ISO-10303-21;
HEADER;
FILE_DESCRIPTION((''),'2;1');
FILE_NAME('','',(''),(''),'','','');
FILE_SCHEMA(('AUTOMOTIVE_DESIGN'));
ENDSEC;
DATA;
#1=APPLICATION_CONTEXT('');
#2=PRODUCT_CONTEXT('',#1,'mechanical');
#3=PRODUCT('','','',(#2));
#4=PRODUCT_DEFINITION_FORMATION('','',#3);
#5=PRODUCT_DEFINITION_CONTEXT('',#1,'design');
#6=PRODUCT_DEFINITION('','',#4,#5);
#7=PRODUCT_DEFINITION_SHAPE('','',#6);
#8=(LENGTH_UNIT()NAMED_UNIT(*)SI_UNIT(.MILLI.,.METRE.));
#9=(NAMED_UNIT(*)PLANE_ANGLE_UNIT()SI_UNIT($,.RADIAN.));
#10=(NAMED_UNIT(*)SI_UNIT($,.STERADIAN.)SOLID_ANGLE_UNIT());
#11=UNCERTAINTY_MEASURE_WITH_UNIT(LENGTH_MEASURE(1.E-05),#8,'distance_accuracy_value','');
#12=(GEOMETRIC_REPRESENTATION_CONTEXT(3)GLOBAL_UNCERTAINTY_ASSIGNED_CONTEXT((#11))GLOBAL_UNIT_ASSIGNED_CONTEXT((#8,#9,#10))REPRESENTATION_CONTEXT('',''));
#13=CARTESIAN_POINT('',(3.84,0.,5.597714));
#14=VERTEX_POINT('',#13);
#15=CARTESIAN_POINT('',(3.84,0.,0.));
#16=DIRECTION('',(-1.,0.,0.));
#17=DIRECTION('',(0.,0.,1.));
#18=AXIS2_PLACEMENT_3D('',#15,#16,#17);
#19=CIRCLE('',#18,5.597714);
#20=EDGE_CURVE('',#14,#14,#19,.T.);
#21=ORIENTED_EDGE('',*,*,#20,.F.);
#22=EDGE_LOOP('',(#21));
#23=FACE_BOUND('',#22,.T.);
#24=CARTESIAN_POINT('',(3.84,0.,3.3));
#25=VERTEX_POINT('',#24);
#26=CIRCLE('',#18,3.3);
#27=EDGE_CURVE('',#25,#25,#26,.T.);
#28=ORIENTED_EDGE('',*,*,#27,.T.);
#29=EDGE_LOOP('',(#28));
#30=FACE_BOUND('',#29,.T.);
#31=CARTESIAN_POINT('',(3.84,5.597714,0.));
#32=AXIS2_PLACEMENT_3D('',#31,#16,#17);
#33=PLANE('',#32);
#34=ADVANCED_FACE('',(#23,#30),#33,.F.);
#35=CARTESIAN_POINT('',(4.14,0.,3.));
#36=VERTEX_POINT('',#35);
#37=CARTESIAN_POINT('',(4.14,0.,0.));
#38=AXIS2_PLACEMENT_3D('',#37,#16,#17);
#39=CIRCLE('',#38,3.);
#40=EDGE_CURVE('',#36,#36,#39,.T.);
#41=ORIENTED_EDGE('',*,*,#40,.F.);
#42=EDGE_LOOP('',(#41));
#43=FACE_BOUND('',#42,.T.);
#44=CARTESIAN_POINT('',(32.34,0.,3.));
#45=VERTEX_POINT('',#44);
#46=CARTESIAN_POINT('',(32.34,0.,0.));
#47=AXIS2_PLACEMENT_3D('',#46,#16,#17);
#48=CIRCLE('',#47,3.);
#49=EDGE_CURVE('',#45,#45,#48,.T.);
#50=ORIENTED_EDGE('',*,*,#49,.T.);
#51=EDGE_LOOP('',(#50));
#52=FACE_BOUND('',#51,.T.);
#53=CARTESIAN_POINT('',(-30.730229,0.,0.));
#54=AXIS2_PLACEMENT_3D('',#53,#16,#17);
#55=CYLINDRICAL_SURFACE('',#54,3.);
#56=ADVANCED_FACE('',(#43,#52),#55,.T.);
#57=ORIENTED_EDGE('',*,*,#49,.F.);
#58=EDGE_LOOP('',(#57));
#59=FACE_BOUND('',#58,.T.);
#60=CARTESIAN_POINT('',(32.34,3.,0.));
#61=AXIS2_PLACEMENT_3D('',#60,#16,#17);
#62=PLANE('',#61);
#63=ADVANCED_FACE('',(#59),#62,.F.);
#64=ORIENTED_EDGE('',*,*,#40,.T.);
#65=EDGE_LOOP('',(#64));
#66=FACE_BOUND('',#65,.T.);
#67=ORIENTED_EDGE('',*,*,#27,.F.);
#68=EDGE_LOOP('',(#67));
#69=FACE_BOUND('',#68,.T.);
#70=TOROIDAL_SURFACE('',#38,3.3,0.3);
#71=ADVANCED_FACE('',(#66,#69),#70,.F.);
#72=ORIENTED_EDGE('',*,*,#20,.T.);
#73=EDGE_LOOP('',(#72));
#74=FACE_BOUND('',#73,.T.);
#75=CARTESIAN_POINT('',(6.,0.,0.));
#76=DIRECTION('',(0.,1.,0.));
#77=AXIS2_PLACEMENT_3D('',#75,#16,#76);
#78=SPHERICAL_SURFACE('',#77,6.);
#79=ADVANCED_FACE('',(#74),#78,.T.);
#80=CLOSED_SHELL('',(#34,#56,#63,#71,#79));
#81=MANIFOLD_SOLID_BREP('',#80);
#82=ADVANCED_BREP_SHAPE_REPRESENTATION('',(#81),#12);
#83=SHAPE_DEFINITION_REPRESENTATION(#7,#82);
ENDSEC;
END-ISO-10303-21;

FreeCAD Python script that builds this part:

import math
import FreeCAD as App
import Part
import Sketcher
from FreeCAD import Vector

doc = App.newDocument("Part")
params = doc.addObject("Spreadsheet::Sheet", "Params")
for row, (alias, value) in enumerate([
    ("sketch1_radius", "6 mm"),
    ("sketch1_radius2", "0.3 mm"),
    ("sketch1_height", "3 mm"),
    ("sketch1_width", "28.2 mm"),
    ("sketch1_width2", "32.34 mm"),
    ("revolution_angle", "360 deg"),
], start=1):
    params.set(f"A{row}", alias)
    params.set(f"B{row}", "=" + value)
    params.setAlias(f"B{row}", alias)

body = doc.addObject("PartDesign::Body", "Body")

# Sketch on XY plane
sketch1 = body.newObject("Sketcher::SketchObject", "Sketch")
sketch1.AttachmentSupport = (doc.getObject("XY_Plane"), [""])
sketch1.MapMode = "FlatFace"
sketch1.addGeometry([
    Part.LineSegment(Vector(3.84, 3.3, 0), Vector(3.84, 5.597714, 0)),  # 0
    Part.ArcOfCircle(Part.Circle(Vector(6, 0, 0), Vector(0, 0, 1), 6), math.radians(111.100196), math.radians(180)),  # 1
    Part.LineSegment(Vector(0, 0, 0), Vector(32.34, 0, 0)),  # 2
    Part.LineSegment(Vector(32.34, 0, 0), Vector(32.34, 3, 0)),  # 3
    Part.LineSegment(Vector(32.34, 3, 0), Vector(4.14, 3, 0)),  # 4
    Part.ArcOfCircle(Part.Circle(Vector(4.14, 3.3, 0), Vector(0, 0, 1), 0.3), math.radians(-180), math.radians(-90)),  # 5
], False)
sketch1.addConstraint([
    Sketcher.Constraint("Coincident", 0, 2, 1, 1),
    Sketcher.Constraint("Coincident", 1, 2, 2, 1),
    Sketcher.Constraint("Coincident", 2, 2, 3, 1),
    Sketcher.Constraint("Coincident", 3, 2, 4, 1),
    Sketcher.Constraint("Tangent", 4, 2, 5, 2),
    Sketcher.Constraint("Tangent", 5, 1, 0, 1),
    Sketcher.Constraint("Vertical", 0),
    Sketcher.Constraint("Horizontal", 2),
    Sketcher.Constraint("Vertical", 3),
    Sketcher.Constraint("Horizontal", 4),
    Sketcher.Constraint("Coincident", 1, 2, -1, 1),
    Sketcher.Constraint("PointOnObject", 1, 3, -1),
    Sketcher.Constraint("Radius", 1, 6.0),
    Sketcher.Constraint("Radius", 5, 0.3),
    Sketcher.Constraint("DistanceY", 3, 1, 3, 2, 3.0),
    Sketcher.Constraint("DistanceX", 4, 2, 4, 1, 28.2),
    Sketcher.Constraint("DistanceX", 2, 1, 2, 2, 32.34),
])
sketch1.setExpression("Constraints[12]", "Params.sketch1_radius")
sketch1.setExpression("Constraints[13]", "Params.sketch1_radius2")
sketch1.setExpression("Constraints[14]", "Params.sketch1_height")
sketch1.setExpression("Constraints[15]", "Params.sketch1_width")
sketch1.setExpression("Constraints[16]", "Params.sketch1_width2")
revolution = body.newObject("PartDesign::Revolution", "Revolution")
revolution.Profile = sketch1
revolution.ReferenceAxis = (sketch1, ["H_Axis"])
revolution.setExpression("Angle", "Params.revolution_angle")

doc.recompute()
